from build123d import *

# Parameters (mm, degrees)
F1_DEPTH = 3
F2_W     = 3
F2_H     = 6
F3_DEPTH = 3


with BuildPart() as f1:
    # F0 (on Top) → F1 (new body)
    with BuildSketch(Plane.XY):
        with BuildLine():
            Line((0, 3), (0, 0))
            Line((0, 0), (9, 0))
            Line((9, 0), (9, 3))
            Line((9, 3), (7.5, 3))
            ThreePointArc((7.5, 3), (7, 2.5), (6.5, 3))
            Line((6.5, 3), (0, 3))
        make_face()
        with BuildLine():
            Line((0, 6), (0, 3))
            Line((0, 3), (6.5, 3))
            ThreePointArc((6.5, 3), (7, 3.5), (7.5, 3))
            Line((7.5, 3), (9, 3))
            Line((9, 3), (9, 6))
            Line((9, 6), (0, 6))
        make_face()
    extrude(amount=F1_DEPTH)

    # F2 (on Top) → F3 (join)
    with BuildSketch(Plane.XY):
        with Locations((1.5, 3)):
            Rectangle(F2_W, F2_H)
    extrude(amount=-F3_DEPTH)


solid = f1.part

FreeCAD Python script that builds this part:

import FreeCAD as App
import Part
import Sketcher

V = App.Vector

doc = App.newDocument("Part")
params = doc.addObject("Spreadsheet::Sheet", "Params")
for row, (alias, value) in enumerate([
    ("sketch1_diameter", "1 mm"),
    ("sketch1_width", "9 mm"),
    ("sketch1_height", "6 mm"),
    ("pad1_length", "3 mm"),
    ("sketch2_width", "3 mm"),
    ("sketch2_height", "6 mm"),
    ("pad2_length", "3 mm"),
], start=1):
    params.set(f"A{row}", alias)
    params.set(f"B{row}", "=" + value)
    params.setAlias(f"B{row}", alias)

body = doc.addObject("PartDesign::Body", "Body")

# Sketch on XY plane
sketch1 = body.newObject("Sketcher::SketchObject", "Sketch")
sketch1.AttachmentSupport = (doc.getObject("XY_Plane"), [""])
sketch1.MapMode = "FlatFace"
sketch1.addGeometry(Part.LineSegment(V(0, 0, 0), V(9, 0, 0)), False)
sketch1.addGeometry(Part.LineSegment(V(9, 0, 0), V(9, 6, 0)), False)
sketch1.addGeometry(Part.LineSegment(V(9, 6, 0), V(0, 6, 0)), False)
sketch1.addGeometry(Part.LineSegment(V(0, 6, 0), V(0, 0, 0)), False)
sketch1.addGeometry(Part.Circle(V(7, 3, 0), V(0, 0, 1), 0.5), False)
sketch1.addConstraint(Sketcher.Constraint("Coincident", 0, 2, 1, 1))
sketch1.addConstraint(Sketcher.Constraint("Coincident", 1, 2, 2, 1))
sketch1.addConstraint(Sketcher.Constraint("Coincident", 2, 2, 3, 1))
sketch1.addConstraint(Sketcher.Constraint("Coincident", 3, 2, 0, 1))
sketch1.addConstraint(Sketcher.Constraint("Horizontal", 0))
sketch1.addConstraint(Sketcher.Constraint("Vertical", 1))
sketch1.addConstraint(Sketcher.Constraint("Horizontal", 2))
sketch1.addConstraint(Sketcher.Constraint("Vertical", 3))
sketch1.addConstraint(Sketcher.Constraint("Coincident", 3, 2, -1, 1))
sketch1.addConstraint(Sketcher.Constraint("Diameter", 4, 1.0))
sketch1.addConstraint(Sketcher.Constraint("DistanceX", 0, 1, 0, 2, 9.0))
sketch1.addConstraint(Sketcher.Constraint("DistanceY", 1, 1, 1, 2, 6.0))
sketch1.addConstraint(Sketcher.Constraint("DistanceX", -1, 1, 4, 3, 7.0))
sketch1.addConstraint(Sketcher.Constraint("DistanceY", -1, 1, 4, 3, 3.0))
sketch1.setExpression("Constraints[9]", "Params.sketch1_diameter")
sketch1.setExpression("Constraints[10]", "Params.sketch1_width")
sketch1.setExpression("Constraints[11]", "Params.sketch1_height")
pad1 = body.newObject("PartDesign::Pad", "Pad")
pad1.Profile = sketch1
pad1.setExpression("Length", "Params.pad1_length")

# Sketch on XY plane
sketch2 = body.newObject("Sketcher::SketchObject", "Sketch001")
sketch2.AttachmentSupport = (doc.getObject("XY_Plane"), [""])
sketch2.MapMode = "FlatFace"
sketch2.addGeometry(Part.LineSegment(V(0, 6, 0), V(0, 0, 0)), False)
sketch2.addGeometry(Part.LineSegment(V(0, 0, 0), V(3, 0, 0)), False)
sketch2.addGeometry(Part.LineSegment(V(3, 0, 0), V(3, 6, 0)), False)
sketch2.addGeometry(Part.LineSegment(V(3, 6, 0), V(0, 6, 0)), False)
sketch2.addConstraint(Sketcher.Constraint("Coincident", 0, 2, 1, 1))
sketch2.addConstraint(Sketcher.Constraint("Coincident", 1, 2, 2, 1))
sketch2.addConstraint(Sketcher.Constraint("Coincident", 2, 2, 3, 1))
sketch2.addConstraint(Sketcher.Constraint("Coincident", 3, 2, 0, 1))
sketch2.addConstraint(Sketcher.Constraint("Vertical", 0))
sketch2.addConstraint(Sketcher.Constraint("Horizontal", 1))
sketch2.addConstraint(Sketcher.Constraint("Vertical", 2))
sketch2.addConstraint(Sketcher.Constraint("Horizontal", 3))
sketch2.addConstraint(Sketcher.Constraint("Coincident", 0, 2, -1, 1))
sketch2.addConstraint(Sketcher.Constraint("DistanceX", 1, 1, 1, 2, 3.0))
sketch2.addConstraint(Sketcher.Constraint("DistanceY", 0, 2, 0, 1, 6.0))
sketch2.setExpression("Constraints[9]", "Params.sketch2_width")
sketch2.setExpression("Constraints[10]", "Params.sketch2_height")
pad2 = body.newObject("PartDesign::Pad", "Pad001")
pad2.Profile = sketch2
pad2.setExpression("Length", "Params.pad2_length")
pad2.Reversed = True

doc.recompute()
